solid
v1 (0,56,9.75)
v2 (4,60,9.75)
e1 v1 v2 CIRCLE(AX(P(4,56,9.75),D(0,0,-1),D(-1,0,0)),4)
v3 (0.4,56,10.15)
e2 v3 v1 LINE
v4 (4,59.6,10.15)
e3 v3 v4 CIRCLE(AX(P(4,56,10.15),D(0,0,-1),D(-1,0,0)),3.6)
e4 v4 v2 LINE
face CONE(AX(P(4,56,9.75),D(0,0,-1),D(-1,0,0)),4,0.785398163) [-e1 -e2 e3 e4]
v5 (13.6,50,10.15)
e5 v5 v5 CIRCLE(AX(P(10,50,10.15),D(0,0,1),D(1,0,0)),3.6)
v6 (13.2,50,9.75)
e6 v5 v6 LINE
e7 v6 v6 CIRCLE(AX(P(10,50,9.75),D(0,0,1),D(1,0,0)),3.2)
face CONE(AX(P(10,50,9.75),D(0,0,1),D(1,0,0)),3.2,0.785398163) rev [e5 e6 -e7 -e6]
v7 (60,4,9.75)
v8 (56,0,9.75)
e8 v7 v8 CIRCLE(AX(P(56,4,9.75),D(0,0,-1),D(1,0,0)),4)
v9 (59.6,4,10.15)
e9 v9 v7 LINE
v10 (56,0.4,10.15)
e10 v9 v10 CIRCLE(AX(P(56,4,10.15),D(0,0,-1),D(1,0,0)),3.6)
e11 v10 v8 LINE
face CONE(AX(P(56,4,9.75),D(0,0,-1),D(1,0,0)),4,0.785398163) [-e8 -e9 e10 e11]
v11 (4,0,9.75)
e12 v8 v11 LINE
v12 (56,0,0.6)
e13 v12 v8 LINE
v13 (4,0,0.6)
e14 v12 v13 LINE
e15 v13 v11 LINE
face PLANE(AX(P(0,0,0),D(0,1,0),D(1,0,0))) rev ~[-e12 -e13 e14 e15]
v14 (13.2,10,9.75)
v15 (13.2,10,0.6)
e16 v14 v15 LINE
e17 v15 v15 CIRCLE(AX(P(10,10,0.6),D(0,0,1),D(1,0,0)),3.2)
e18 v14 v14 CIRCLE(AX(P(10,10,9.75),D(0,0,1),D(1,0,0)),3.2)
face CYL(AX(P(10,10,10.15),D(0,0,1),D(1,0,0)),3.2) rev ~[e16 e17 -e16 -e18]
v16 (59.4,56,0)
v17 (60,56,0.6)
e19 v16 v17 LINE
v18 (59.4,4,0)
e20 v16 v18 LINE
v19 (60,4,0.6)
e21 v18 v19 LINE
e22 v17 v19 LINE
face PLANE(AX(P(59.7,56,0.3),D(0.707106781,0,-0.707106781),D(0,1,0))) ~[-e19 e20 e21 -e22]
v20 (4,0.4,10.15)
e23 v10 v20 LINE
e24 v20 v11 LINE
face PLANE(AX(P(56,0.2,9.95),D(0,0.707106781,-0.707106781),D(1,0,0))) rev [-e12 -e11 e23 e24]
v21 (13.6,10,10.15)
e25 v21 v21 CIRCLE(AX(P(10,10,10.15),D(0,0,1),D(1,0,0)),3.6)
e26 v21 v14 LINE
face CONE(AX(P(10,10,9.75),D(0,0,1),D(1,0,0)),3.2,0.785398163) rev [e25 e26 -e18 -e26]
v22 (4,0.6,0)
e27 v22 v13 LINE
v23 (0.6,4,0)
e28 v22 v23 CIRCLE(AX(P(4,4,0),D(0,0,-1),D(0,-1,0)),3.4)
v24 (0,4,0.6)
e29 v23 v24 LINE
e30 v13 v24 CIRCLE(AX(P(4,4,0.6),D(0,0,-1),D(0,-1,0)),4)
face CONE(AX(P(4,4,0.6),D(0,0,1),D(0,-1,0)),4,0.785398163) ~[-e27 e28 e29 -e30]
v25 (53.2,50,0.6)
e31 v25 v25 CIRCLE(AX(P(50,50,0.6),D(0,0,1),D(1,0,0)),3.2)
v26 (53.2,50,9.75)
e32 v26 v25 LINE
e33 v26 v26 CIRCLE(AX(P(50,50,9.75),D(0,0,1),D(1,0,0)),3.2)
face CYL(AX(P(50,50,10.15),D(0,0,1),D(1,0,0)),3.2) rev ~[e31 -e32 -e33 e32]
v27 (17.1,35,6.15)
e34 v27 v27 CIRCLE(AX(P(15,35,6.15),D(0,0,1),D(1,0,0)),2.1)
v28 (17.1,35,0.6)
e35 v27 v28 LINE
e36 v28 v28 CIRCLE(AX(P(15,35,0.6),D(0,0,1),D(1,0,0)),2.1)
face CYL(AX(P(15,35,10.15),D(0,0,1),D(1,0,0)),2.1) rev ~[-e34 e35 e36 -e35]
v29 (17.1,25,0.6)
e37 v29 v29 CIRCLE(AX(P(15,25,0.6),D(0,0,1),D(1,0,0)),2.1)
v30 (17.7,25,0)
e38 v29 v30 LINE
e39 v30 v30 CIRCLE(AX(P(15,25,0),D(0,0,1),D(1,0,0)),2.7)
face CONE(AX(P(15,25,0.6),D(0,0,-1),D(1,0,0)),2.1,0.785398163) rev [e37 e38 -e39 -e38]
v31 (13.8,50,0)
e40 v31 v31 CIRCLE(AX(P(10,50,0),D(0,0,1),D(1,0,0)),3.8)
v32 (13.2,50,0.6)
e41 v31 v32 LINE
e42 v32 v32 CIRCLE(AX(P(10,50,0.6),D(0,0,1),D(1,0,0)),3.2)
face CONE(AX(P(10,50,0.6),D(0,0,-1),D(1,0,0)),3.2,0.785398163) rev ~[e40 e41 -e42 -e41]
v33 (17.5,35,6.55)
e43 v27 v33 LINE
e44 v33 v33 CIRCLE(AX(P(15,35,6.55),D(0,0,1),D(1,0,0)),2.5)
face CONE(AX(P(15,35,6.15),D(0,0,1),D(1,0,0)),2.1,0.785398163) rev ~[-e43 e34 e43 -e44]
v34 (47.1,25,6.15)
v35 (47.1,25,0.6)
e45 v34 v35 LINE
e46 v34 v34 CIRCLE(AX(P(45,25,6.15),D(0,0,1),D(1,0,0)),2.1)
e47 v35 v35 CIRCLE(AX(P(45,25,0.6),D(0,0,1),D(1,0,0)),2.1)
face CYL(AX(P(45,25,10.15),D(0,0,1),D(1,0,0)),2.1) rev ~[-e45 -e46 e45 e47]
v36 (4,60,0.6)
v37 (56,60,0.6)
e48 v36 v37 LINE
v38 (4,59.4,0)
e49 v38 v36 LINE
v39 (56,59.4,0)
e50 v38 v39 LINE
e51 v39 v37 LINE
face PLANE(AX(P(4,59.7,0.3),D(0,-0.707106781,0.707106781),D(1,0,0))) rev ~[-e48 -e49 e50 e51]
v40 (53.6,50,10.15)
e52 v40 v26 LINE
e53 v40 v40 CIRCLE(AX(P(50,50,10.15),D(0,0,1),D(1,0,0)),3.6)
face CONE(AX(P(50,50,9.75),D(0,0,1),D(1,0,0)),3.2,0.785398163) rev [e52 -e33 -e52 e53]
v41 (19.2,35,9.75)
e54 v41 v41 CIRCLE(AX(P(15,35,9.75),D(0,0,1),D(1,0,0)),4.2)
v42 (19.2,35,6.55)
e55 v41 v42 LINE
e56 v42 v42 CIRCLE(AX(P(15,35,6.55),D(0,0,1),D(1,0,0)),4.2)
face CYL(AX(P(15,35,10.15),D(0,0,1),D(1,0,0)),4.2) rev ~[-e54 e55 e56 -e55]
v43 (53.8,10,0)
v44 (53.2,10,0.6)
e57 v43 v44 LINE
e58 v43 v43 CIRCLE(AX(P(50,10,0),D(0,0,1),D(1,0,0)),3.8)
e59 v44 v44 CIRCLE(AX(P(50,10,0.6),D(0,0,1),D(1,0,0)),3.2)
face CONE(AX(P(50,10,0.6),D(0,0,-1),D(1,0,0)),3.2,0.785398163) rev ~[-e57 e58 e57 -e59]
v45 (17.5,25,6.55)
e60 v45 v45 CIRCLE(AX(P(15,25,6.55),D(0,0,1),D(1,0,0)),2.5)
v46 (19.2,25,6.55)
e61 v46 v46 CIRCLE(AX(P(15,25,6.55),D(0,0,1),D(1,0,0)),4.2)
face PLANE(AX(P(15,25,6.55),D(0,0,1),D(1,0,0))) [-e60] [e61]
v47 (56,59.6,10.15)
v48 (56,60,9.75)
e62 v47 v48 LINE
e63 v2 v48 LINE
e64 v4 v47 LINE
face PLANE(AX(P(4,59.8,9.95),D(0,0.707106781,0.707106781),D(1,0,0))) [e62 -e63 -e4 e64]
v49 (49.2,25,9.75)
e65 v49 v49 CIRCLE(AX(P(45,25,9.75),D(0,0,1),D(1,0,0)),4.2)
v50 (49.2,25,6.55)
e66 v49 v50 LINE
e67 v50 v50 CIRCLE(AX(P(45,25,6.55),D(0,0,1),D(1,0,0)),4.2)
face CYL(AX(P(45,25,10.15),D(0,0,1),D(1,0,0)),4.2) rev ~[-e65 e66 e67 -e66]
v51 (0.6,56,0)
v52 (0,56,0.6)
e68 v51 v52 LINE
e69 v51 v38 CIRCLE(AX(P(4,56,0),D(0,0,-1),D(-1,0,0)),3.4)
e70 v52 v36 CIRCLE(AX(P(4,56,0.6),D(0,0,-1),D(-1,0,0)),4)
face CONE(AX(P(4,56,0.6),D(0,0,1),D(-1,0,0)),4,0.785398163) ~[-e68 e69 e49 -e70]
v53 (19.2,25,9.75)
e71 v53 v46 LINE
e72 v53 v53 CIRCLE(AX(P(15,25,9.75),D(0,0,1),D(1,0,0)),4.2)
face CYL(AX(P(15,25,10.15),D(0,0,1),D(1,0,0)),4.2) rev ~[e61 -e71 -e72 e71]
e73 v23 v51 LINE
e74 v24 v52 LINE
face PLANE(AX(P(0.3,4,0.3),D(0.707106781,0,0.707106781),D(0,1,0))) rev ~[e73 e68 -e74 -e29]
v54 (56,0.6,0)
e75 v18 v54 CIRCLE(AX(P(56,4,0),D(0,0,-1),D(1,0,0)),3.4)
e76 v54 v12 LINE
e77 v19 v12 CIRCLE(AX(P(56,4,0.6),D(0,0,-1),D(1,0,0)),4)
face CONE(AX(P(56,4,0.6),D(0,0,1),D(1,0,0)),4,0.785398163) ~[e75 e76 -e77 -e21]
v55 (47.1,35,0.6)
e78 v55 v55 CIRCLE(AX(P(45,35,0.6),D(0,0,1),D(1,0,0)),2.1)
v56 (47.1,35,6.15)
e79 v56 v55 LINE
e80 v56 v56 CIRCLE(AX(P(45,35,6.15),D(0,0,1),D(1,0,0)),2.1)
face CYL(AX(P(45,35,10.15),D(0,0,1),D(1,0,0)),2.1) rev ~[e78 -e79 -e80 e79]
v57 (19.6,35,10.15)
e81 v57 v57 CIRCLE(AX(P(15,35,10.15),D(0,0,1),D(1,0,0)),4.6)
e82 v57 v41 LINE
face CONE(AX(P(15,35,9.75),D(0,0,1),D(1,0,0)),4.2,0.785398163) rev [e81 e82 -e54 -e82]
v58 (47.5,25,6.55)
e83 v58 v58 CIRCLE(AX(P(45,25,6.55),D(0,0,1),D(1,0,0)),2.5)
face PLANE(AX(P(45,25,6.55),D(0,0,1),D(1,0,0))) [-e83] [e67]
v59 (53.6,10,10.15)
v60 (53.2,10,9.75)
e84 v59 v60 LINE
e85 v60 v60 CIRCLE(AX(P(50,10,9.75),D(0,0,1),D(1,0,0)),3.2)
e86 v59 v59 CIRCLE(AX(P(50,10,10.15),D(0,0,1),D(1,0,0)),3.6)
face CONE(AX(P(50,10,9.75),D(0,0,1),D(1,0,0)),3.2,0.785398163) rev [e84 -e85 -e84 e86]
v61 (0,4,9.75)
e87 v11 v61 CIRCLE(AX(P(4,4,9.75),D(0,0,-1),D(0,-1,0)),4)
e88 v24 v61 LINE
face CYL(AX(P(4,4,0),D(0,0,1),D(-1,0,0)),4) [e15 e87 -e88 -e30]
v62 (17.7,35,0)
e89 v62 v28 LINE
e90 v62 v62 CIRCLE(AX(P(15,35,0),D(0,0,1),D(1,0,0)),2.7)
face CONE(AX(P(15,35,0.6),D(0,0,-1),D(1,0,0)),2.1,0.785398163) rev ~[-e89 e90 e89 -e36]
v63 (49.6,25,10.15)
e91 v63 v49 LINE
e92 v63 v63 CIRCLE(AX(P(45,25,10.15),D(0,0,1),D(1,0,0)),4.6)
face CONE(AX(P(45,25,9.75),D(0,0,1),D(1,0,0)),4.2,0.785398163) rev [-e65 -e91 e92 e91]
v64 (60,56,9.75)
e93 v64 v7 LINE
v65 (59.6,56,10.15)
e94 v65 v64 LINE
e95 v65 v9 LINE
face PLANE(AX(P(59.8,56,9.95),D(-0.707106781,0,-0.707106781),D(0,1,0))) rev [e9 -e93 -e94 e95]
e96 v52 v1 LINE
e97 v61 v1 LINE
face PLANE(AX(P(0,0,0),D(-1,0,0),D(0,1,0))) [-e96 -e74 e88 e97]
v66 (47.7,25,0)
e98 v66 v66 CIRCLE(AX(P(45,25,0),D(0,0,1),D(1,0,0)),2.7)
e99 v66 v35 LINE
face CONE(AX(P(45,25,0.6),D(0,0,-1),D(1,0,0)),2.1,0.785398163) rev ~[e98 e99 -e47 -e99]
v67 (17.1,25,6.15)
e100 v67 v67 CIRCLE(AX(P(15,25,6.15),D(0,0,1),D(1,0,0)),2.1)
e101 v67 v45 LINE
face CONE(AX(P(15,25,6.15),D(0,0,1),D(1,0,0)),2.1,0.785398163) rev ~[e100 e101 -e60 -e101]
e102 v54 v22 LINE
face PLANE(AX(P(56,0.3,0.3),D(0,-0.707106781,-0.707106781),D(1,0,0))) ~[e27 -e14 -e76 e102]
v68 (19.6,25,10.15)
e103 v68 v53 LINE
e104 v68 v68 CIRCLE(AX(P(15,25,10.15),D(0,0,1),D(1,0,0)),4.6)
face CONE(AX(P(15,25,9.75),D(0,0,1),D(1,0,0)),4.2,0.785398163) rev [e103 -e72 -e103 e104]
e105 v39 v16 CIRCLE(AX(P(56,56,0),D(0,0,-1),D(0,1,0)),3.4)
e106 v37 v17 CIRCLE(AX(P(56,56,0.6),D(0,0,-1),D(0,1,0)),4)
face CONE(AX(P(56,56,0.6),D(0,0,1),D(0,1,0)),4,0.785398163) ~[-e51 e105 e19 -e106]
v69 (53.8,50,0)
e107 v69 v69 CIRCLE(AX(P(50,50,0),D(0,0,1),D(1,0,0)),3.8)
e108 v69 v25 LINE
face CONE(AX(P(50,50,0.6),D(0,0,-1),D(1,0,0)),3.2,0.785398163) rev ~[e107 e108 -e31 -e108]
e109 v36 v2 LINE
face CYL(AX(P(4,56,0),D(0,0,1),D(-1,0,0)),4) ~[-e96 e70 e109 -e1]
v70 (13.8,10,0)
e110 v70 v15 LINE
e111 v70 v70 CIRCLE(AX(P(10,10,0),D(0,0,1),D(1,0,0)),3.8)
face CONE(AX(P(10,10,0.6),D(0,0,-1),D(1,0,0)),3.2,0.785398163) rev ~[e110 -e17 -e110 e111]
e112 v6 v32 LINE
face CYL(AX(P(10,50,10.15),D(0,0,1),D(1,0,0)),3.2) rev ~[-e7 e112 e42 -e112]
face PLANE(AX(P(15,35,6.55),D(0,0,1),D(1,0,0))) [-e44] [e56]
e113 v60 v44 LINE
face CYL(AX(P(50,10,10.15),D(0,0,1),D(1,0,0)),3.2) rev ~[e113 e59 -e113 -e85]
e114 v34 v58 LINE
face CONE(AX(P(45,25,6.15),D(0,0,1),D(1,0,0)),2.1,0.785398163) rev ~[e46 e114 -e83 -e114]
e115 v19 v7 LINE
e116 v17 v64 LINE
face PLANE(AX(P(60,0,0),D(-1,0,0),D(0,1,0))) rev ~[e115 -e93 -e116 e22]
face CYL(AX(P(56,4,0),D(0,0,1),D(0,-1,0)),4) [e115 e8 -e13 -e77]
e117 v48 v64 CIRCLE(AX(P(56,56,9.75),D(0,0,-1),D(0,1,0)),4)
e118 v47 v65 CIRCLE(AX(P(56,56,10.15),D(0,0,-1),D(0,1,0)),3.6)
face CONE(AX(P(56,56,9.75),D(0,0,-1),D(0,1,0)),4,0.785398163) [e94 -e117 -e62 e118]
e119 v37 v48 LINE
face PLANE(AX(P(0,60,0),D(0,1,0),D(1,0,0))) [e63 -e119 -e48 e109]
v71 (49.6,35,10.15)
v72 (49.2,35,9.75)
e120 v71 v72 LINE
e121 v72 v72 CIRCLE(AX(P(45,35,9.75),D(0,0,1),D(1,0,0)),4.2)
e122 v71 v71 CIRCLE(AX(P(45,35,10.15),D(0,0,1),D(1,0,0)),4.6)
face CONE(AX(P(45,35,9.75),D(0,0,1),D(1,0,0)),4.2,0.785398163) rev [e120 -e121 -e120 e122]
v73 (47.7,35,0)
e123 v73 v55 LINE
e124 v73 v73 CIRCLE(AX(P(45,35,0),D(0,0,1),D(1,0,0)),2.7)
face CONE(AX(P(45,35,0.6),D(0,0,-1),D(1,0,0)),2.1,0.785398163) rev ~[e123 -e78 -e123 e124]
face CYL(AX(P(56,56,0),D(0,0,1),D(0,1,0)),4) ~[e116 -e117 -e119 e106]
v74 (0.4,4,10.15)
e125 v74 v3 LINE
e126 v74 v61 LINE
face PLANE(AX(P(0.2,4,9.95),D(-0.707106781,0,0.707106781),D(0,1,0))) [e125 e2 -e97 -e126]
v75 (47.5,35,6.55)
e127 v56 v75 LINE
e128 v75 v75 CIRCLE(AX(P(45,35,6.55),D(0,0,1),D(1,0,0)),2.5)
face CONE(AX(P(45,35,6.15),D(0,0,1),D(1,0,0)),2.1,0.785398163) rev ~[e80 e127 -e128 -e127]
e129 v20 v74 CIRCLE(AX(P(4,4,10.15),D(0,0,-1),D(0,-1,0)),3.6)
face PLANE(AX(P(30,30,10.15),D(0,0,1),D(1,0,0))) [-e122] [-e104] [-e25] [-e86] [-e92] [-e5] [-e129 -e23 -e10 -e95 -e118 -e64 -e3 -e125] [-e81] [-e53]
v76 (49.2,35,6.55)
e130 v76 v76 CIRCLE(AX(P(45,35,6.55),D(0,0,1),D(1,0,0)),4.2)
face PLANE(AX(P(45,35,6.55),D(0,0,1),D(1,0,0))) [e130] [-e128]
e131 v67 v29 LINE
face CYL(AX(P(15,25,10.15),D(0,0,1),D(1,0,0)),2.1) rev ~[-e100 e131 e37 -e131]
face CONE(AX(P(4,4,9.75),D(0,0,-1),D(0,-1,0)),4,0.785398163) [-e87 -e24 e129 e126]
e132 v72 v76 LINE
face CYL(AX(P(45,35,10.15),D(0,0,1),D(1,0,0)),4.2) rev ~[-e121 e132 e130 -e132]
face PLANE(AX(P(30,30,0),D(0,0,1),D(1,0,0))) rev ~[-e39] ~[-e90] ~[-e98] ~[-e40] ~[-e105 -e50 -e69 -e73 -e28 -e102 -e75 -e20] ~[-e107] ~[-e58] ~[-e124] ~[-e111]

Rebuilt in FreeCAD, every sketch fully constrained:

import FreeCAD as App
import Part
import Sketcher
from FreeCAD import Vector


def edges_at(feature, points):
    """Names of the edges that pass closest to the given points."""
    edges = feature.Shape.Edges
    near = lambda p: min(range(len(edges)), key=lambda i: edges[i].distToShape(Part.Vertex(*p))[0])
    return sorted({f"Edge{near(p) + 1}" for p in points})

doc = App.newDocument("Part")
body = doc.addObject("PartDesign::Body", "Body")

# Sketch on XY plane
sketch1 = body.newObject("Sketcher::SketchObject", "Sketch")
sketch1.AttachmentSupport = (doc.getObject("XY_Plane"), [""])
sketch1.MapMode = "FlatFace"
sketch1.addGeometry([
    Part.LineSegment(Vector(0, 60, 0), Vector(0, 0, 0)),
    Part.LineSegment(Vector(0, 0, 0), Vector(60, 0, 0)),
    Part.LineSegment(Vector(60, 0, 0), Vector(60, 60, 0)),
    Part.LineSegment(Vector(60, 60, 0), Vector(0, 60, 0)),
], False)
sketch1.addConstraint([
    Sketcher.Constraint("Coincident", 0, 2, 1, 1),
    Sketcher.Constraint("Coincident", 1, 2, 2, 1),
    Sketcher.Constraint("Coincident", 2, 2, 3, 1),
    Sketcher.Constraint("Coincident", 3, 2, 0, 1),
    Sketcher.Constraint("Vertical", 0),
    Sketcher.Constraint("Horizontal", 1),
    Sketcher.Constraint("Vertical", 2),
    Sketcher.Constraint("Horizontal", 3),
    Sketcher.Constraint("Coincident", 0, 2, -1, 1),
    Sketcher.Constraint("Equal", 3, 0),
    Sketcher.Constraint("DistanceX", 1, 1, 1, 2, 60.0),
])
pad1 = body.newObject("PartDesign::Pad", "Pad")
pad1.Profile = sketch1
pad1.Length = 10.15

# Sketch on XY plane
sketch2 = body.newObject("Sketcher::SketchObject", "Sketch001")
sketch2.AttachmentSupport = (doc.getObject("XY_Plane"), [""])
sketch2.MapMode = "FlatFace"
sketch2.AttachmentOffset = App.Placement(Vector(0, 0, 10.15), App.Rotation())
sketch2.addGeometry([
    Part.Circle(Vector(15, 35, 0), Vector(0, 0, 1), 2.1),  # 0
    Part.Circle(Vector(45, 35, 0), Vector(0, 0, 1), 2.1),  # 1
    Part.Circle(Vector(15, 25, 0), Vector(0, 0, 1), 2.1),  # 2
    Part.Circle(Vector(45, 25, 0), Vector(0, 0, 1), 2.1),  # 3
    Part.Circle(Vector(10, 50, 0), Vector(0, 0, 1), 3.2),  # 4
    Part.Circle(Vector(50, 50, 0), Vector(0, 0, 1), 3.2),  # 5
    Part.Circle(Vector(10, 10, 0), Vector(0, 0, 1), 3.2),  # 6
    Part.Circle(Vector(50, 10, 0), Vector(0, 0, 1), 3.2),  # 7
], False)
sketch2.addConstraint([
    Sketcher.Constraint("Equal", 0, 1),
    Sketcher.Constraint("Equal", 1, 2),
    Sketcher.Constraint("Equal", 2, 3),
    Sketcher.Constraint("Equal", 4, 5),
    Sketcher.Constraint("Equal", 5, 6),
    Sketcher.Constraint("Equal", 6, 7),
    Sketcher.Constraint("Horizontal", 0, 3, 1, 3),
    Sketcher.Constraint("Horizontal", 2, 3, 3, 3),
    Sketcher.Constraint("Horizontal", 4, 3, 5, 3),
    Sketcher.Constraint("Horizontal", 6, 3, 7, 3),
    Sketcher.Constraint("Vertical", 0, 3, 2, 3),
    Sketcher.Constraint("Vertical", 1, 3, 3, 3),
    Sketcher.Constraint("Vertical", 4, 3, 6, 3),
    Sketcher.Constraint("Vertical", 5, 3, 7, 3),
    Sketcher.Constraint("Diameter", 0, 4.2),
    Sketcher.Constraint("Diameter", 4, 6.4),
    Sketcher.Constraint("DistanceX", -1, 1, 0, 3, 15.0),
    Sketcher.Constraint("DistanceY", -1, 1, 0, 3, 35.0),
    Sketcher.Constraint("DistanceX", -1, 1, 1, 3, 45.0),
    Sketcher.Constraint("DistanceY", -1, 1, 2, 3, 25.0),
    Sketcher.Constraint("DistanceX", -1, 1, 4, 3, 10.0),
    Sketcher.Constraint("DistanceY", -1, 1, 4, 3, 50.0),
    Sketcher.Constraint("DistanceX", -1, 1, 5, 3, 50.0),
    Sketcher.Constraint("DistanceY", -1, 1, 6, 3, 10.0),
])
pocket1 = body.newObject("PartDesign::Pocket", "Pocket")
pocket1.Profile = sketch2
pocket1.Length = 12

# Sketch on XY plane
sketch3 = body.newObject("Sketcher::SketchObject", "Sketch002")
sketch3.AttachmentSupport = (doc.getObject("XY_Plane"), [""])
sketch3.MapMode = "FlatFace"
sketch3.AttachmentOffset = App.Placement(Vector(0, 0, 10.15), App.Rotation())
sketch3.addGeometry([
    Part.Circle(Vector(15, 35, 0), Vector(0, 0, 1), 4.2),
    Part.Circle(Vector(45, 35, 0), Vector(0, 0, 1), 4.2),
    Part.Circle(Vector(45, 25, 0), Vector(0, 0, 1), 4.2),
    Part.Circle(Vector(15, 25, 0), Vector(0, 0, 1), 4.2),
], False)
sketch3.addConstraint([
    Sketcher.Constraint("Equal", 0, 1),
    Sketcher.Constraint("Equal", 1, 2),
    Sketcher.Constraint("Equal", 2, 3),
    Sketcher.Constraint("Horizontal", 0, 3, 1, 3),
    Sketcher.Constraint("Horizontal", 2, 3, 3, 3),
    Sketcher.Constraint("Vertical", 1, 3, 2, 3),
    Sketcher.Constraint("Vertical", 0, 3, 3, 3),
    Sketcher.Constraint("Diameter", 0, 8.4),
    Sketcher.Constraint("DistanceX", -1, 1, 0, 3, 15.0),
    Sketcher.Constraint("DistanceY", -1, 1, 0, 3, 35.0),
    Sketcher.Constraint("DistanceX", -1, 1, 1, 3, 45.0),
    Sketcher.Constraint("DistanceY", -1, 1, 2, 3, 25.0),
])
pocket2 = body.newObject("PartDesign::Pocket", "Pocket001")
pocket2.Profile = sketch3
pocket2.Length = 3.6
doc.recompute()

fillet = body.newObject("PartDesign::Fillet", "Fillet")
fillet.Base = (pocket2, edges_at(pocket2, [
    (60, 0, 5.075),
    (0, 0, 5.075),
    (0, 60, 5.075),
    (60, 60, 5.075),
]))
fillet.Radius = 4
doc.recompute()

chamfer = body.newObject("PartDesign::Chamfer", "Chamfer")
chamfer.Base = (fillet, edges_at(fillet, [
    (30, 60, 10.15),
    (1.172, 58.828, 10.15),
    (58.828, 58.828, 10.15),
    (0, 30, 10.15),
    (60, 30, 10.15),
    (1.172, 1.172, 10.15),
    (58.828, 1.172, 10.15),
    (30, 0, 10.15),
    (40.8, 35, 10.15),
    (46.8, 50, 10.15),
    (6.8, 50, 10.15),
    (10.8, 35, 10.15),
    (10.8, 25, 10.15),
    (40.8, 25, 10.15),
    (46.8, 10, 10.15),
    (6.8, 10, 10.15),
]))
chamfer.Size = 0.4
doc.recompute()

chamfer2 = body.newObject("PartDesign::Chamfer", "Chamfer001")
chamfer2.Base = (chamfer, edges_at(chamfer, [
    (42.9, 35, 6.55),
    (42.9, 25, 6.55),
    (12.9, 25, 6.55),
    (12.9, 35, 6.55),
]))
chamfer2.Size = 0.4
doc.recompute()

chamfer3 = body.newObject("PartDesign::Chamfer", "Chamfer002")
chamfer3.Base = (chamfer2, edges_at(chamfer2, [
    (30, 60, 0),
    (1.172, 58.828, 0),
    (58.828, 58.828, 0),
    (0, 30, 0),
    (60, 30, 0),
    (1.172, 1.172, 0),
    (58.828, 1.172, 0),
    (30, 0, 0),
    (42.9, 25, 0),
    (42.9, 35, 0),
    (46.8, 50, 0),
    (6.8, 50, 0),
    (12.9, 25, 0),
    (12.9, 35, 0),
    (46.8, 10, 0),
    (6.8, 10, 0),
]))
chamfer3.Size = 0.6

doc.recompute()
